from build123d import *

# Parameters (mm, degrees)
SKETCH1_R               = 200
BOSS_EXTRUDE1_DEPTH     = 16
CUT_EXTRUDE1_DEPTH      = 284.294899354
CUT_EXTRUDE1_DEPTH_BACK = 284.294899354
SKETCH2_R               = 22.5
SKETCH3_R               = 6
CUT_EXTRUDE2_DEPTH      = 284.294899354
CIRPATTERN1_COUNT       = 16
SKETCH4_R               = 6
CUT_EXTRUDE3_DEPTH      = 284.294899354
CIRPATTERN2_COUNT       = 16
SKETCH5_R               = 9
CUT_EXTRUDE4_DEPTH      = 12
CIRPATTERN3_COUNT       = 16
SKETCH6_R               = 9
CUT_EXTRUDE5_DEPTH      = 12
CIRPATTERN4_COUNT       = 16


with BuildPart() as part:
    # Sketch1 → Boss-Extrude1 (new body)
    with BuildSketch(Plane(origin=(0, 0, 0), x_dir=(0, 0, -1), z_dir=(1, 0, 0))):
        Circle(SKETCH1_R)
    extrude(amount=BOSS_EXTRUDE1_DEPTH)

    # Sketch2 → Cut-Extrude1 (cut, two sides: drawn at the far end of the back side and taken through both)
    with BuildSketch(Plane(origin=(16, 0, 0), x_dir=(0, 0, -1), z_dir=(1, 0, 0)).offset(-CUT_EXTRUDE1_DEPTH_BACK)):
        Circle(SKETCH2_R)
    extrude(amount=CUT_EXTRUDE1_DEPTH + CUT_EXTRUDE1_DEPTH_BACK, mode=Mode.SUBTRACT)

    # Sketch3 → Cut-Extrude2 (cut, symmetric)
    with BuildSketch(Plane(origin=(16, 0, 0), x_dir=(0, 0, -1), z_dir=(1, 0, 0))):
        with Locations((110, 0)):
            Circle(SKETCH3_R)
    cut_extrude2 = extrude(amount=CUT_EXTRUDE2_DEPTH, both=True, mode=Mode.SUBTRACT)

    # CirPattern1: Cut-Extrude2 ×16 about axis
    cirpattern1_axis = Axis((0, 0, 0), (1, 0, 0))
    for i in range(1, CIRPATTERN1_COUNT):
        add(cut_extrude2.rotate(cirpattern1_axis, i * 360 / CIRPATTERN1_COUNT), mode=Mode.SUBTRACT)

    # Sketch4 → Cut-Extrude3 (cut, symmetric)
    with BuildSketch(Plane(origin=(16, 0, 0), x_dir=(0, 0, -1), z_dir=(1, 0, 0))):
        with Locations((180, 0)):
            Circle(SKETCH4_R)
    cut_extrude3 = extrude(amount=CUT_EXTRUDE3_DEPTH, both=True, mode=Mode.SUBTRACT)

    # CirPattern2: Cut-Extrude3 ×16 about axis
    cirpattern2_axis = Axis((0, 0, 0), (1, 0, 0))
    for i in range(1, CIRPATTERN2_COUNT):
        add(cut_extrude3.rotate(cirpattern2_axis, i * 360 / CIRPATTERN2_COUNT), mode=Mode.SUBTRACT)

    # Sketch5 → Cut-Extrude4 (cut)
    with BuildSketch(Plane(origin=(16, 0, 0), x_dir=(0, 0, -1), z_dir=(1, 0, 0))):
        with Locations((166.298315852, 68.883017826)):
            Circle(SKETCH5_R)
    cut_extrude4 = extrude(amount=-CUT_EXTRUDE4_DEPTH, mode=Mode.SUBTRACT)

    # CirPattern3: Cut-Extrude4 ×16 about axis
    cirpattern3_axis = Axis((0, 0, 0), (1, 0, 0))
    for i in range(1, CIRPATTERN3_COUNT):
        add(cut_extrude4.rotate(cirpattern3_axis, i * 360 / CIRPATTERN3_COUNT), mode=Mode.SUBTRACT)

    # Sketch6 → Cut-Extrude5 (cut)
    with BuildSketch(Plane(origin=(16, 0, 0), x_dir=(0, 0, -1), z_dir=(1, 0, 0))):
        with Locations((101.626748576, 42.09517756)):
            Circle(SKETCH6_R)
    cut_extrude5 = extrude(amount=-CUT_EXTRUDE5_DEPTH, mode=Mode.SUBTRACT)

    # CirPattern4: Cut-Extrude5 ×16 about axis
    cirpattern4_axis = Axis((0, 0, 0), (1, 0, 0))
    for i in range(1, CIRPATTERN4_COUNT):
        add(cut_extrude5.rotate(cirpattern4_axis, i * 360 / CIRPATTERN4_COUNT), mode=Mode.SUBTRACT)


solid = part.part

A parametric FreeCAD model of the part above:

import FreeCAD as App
import Part
import Sketcher
from FreeCAD import Vector

doc = App.newDocument("Part")
body = doc.addObject("PartDesign::Body", "Body")

# Sketch on YZ plane
sketch1 = body.newObject("Sketcher::SketchObject", "Sketch")
sketch1.AttachmentSupport = (doc.getObject("YZ_Plane"), [""])
sketch1.MapMode = "FlatFace"
sketch1.addGeometry(Part.Circle(Vector(0, 0, 0), Vector(0, 0, 1), 200), False)
sketch1.addConstraint(Sketcher.Constraint("Coincident", 0, 3, -1, 1))
sketch1.addConstraint(Sketcher.Constraint("Diameter", 0, 400.0))
pad1 = body.newObject("PartDesign::Pad", "Pad")
pad1.Profile = sketch1
pad1.Length = 16

# Sketch on YZ plane
sketch2 = body.newObject("Sketcher::SketchObject", "Sketch001")
sketch2.AttachmentSupport = (doc.getObject("YZ_Plane"), [""])
sketch2.MapMode = "FlatFace"
sketch2.AttachmentOffset = App.Placement(Vector(0, 0, 16), App.Rotation())
sketch2.addGeometry(Part.Circle(Vector(0, 0, 0), Vector(0, 0, 1), 22), False)
sketch2.addConstraint(Sketcher.Constraint("Coincident", 0, 3, -1, 1))
sketch2.addConstraint(Sketcher.Constraint("Diameter", 0, 45.0))
pocket1 = body.newObject("PartDesign::Pocket", "Pocket")
pocket1.Profile = sketch2
pocket1.Type = "ThroughAll"
pocket1.Midplane = True

# Sketch on YZ plane
sketch3 = body.newObject("Sketcher::SketchObject", "Sketch002")
sketch3.AttachmentSupport = (doc.getObject("YZ_Plane"), [""])
sketch3.MapMode = "FlatFace"
sketch3.AttachmentOffset = App.Placement(Vector(0, 0, 16), App.Rotation())
sketch3.addGeometry(Part.Circle(Vector(0, -110, 0), Vector(0, 0, 1), 6), False)
sketch3.addConstraint(Sketcher.Constraint("PointOnObject", 0, 3, -2))
sketch3.addConstraint(Sketcher.Constraint("Diameter", 0, 12.0))
sketch3.addConstraint(Sketcher.Constraint("DistanceY", 0, 3, -1, 1, 110.0))
pocket2 = body.newObject("PartDesign::Pocket", "Pocket001")
pocket2.Profile = sketch3
pocket2.Length = 568.589799
pocket2.Midplane = True
doc.recompute()

polarpattern = body.newObject("PartDesign::PolarPattern", "PolarPattern")
polarpattern.Originals = [pocket2]
polarpattern.Axis = (doc.getObject("X_Axis"), [""])
polarpattern.Angle = 360
polarpattern.Occurrences = 16
body.Tip = polarpattern

# Sketch on YZ plane
sketch4 = body.newObject("Sketcher::SketchObject", "Sketch003")
sketch4.AttachmentSupport = (doc.getObject("YZ_Plane"), [""])
sketch4.MapMode = "FlatFace"
sketch4.AttachmentOffset = App.Placement(Vector(0, 0, 16), App.Rotation())
sketch4.addGeometry(Part.Circle(Vector(0, -180, 0), Vector(0, 0, 1), 6), False)
sketch4.addConstraint(Sketcher.Constraint("PointOnObject", 0, 3, -2))
sketch4.addConstraint(Sketcher.Constraint("Diameter", 0, 12.0))
sketch4.addConstraint(Sketcher.Constraint("DistanceY", 0, 3, -1, 1, 180.0))
pocket3 = body.newObject("PartDesign::Pocket", "Pocket002")
pocket3.Profile = sketch4
pocket3.Length = 568.589799
pocket3.Midplane = True
doc.recompute()

polarpattern2 = body.newObject("PartDesign::PolarPattern", "PolarPattern001")
polarpattern2.Originals = [pocket3]
polarpattern2.Axis = (doc.getObject("X_Axis"), [""])
polarpattern2.Angle = 360
polarpattern2.Occurrences = 16
body.Tip = polarpattern2

# Sketch on YZ plane
sketch5 = body.newObject("Sketcher::SketchObject", "Sketch004")
sketch5.AttachmentSupport = (doc.getObject("YZ_Plane"), [""])
sketch5.MapMode = "FlatFace"
sketch5.AttachmentOffset = App.Placement(Vector(0, 0, 16), App.Rotation())
sketch5.addGeometry(Part.Circle(Vector(69, -166, 0), Vector(0, 0, 1), 9), False)
sketch5.addConstraint(Sketcher.Constraint("Diameter", 0, 18.0))
sketch5.addConstraint(Sketcher.Constraint("DistanceX", -1, 1, 0, 3, 68.883018))
sketch5.addConstraint(Sketcher.Constraint("DistanceY", 0, 3, -1, 1, 166.298316))
pocket4 = body.newObject("PartDesign::Pocket", "Pocket003")
pocket4.Profile = sketch5
pocket4.Length = 12
doc.recompute()

polarpattern3 = body.newObject("PartDesign::PolarPattern", "PolarPattern002")
polarpattern3.Originals = [pocket4]
polarpattern3.Axis = (doc.getObject("X_Axis"), [""])
polarpattern3.Angle = 360
polarpattern3.Occurrences = 16
body.Tip = polarpattern3

# Sketch on YZ plane
sketch6 = body.newObject("Sketcher::SketchObject", "Sketch005")
sketch6.AttachmentSupport = (doc.getObject("YZ_Plane"), [""])
sketch6.MapMode = "FlatFace"
sketch6.AttachmentOffset = App.Placement(Vector(0, 0, 16), App.Rotation())
sketch6.addGeometry(Part.Circle(Vector(42, -102, 0), Vector(0, 0, 1), 9), False)
sketch6.addConstraint(Sketcher.Constraint("Diameter", 0, 18.0))
sketch6.addConstraint(Sketcher.Constraint("DistanceY", 0, 3, -1, 1, 101.626749))
sketch6.addConstraint(Sketcher.Constraint("DistanceX", -1, 1, 0, 3, 42.095178))
pocket5 = body.newObject("PartDesign::Pocket", "Pocket004")
pocket5.Profile = sketch6
pocket5.Length = 12
doc.recompute()

polarpattern4 = body.newObject("PartDesign::PolarPattern", "PolarPattern003")
polarpattern4.Originals = [pocket5]
polarpattern4.Axis = (doc.getObject("X_Axis"), [""])
polarpattern4.Angle = 360
polarpattern4.Occurrences = 16
body.Tip = polarpattern4

doc.recompute()
